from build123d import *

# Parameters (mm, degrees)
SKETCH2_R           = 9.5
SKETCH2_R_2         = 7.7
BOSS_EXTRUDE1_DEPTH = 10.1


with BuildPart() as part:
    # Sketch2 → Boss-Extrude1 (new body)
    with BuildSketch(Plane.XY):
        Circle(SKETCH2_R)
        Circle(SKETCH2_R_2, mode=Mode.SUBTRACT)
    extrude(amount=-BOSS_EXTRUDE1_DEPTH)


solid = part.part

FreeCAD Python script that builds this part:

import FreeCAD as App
import Part
import Sketcher

doc = App.newDocument("Part")
body = doc.addObject("PartDesign::Body", "Body")

sketch1 = doc.addObject("Sketcher::SketchObject", "Sketch")
body.addObject(sketch1)
sketch1.AttachmentSupport = (doc.XY_Plane, [""])
sketch1.MapMode = "FlatFace"
sketch1.addGeometry(Part.Circle(App.Vector(0, 0, 0), App.Vector(0, 0, 1), 9.5), False)
sketch1.addGeometry(Part.Circle(App.Vector(0, 0, 0), App.Vector(0, 0, 1), 7.7), False)
sketch1.addConstraint(Sketcher.Constraint("Coincident", 0, 3, -1, 1))
sketch1.addConstraint(Sketcher.Constraint("Coincident", 1, 3, -1, 1))
sketch1.addConstraint(Sketcher.Constraint("Diameter", 0, 19.0))
sketch1.addConstraint(Sketcher.Constraint("Diameter", 1, 15.4))
pad1 = doc.addObject("PartDesign::Pad", "Pad")
body.addObject(pad1)
pad1.Profile = sketch1
pad1.Length = 10.1
pad1.Reversed = True

doc.recompute()
